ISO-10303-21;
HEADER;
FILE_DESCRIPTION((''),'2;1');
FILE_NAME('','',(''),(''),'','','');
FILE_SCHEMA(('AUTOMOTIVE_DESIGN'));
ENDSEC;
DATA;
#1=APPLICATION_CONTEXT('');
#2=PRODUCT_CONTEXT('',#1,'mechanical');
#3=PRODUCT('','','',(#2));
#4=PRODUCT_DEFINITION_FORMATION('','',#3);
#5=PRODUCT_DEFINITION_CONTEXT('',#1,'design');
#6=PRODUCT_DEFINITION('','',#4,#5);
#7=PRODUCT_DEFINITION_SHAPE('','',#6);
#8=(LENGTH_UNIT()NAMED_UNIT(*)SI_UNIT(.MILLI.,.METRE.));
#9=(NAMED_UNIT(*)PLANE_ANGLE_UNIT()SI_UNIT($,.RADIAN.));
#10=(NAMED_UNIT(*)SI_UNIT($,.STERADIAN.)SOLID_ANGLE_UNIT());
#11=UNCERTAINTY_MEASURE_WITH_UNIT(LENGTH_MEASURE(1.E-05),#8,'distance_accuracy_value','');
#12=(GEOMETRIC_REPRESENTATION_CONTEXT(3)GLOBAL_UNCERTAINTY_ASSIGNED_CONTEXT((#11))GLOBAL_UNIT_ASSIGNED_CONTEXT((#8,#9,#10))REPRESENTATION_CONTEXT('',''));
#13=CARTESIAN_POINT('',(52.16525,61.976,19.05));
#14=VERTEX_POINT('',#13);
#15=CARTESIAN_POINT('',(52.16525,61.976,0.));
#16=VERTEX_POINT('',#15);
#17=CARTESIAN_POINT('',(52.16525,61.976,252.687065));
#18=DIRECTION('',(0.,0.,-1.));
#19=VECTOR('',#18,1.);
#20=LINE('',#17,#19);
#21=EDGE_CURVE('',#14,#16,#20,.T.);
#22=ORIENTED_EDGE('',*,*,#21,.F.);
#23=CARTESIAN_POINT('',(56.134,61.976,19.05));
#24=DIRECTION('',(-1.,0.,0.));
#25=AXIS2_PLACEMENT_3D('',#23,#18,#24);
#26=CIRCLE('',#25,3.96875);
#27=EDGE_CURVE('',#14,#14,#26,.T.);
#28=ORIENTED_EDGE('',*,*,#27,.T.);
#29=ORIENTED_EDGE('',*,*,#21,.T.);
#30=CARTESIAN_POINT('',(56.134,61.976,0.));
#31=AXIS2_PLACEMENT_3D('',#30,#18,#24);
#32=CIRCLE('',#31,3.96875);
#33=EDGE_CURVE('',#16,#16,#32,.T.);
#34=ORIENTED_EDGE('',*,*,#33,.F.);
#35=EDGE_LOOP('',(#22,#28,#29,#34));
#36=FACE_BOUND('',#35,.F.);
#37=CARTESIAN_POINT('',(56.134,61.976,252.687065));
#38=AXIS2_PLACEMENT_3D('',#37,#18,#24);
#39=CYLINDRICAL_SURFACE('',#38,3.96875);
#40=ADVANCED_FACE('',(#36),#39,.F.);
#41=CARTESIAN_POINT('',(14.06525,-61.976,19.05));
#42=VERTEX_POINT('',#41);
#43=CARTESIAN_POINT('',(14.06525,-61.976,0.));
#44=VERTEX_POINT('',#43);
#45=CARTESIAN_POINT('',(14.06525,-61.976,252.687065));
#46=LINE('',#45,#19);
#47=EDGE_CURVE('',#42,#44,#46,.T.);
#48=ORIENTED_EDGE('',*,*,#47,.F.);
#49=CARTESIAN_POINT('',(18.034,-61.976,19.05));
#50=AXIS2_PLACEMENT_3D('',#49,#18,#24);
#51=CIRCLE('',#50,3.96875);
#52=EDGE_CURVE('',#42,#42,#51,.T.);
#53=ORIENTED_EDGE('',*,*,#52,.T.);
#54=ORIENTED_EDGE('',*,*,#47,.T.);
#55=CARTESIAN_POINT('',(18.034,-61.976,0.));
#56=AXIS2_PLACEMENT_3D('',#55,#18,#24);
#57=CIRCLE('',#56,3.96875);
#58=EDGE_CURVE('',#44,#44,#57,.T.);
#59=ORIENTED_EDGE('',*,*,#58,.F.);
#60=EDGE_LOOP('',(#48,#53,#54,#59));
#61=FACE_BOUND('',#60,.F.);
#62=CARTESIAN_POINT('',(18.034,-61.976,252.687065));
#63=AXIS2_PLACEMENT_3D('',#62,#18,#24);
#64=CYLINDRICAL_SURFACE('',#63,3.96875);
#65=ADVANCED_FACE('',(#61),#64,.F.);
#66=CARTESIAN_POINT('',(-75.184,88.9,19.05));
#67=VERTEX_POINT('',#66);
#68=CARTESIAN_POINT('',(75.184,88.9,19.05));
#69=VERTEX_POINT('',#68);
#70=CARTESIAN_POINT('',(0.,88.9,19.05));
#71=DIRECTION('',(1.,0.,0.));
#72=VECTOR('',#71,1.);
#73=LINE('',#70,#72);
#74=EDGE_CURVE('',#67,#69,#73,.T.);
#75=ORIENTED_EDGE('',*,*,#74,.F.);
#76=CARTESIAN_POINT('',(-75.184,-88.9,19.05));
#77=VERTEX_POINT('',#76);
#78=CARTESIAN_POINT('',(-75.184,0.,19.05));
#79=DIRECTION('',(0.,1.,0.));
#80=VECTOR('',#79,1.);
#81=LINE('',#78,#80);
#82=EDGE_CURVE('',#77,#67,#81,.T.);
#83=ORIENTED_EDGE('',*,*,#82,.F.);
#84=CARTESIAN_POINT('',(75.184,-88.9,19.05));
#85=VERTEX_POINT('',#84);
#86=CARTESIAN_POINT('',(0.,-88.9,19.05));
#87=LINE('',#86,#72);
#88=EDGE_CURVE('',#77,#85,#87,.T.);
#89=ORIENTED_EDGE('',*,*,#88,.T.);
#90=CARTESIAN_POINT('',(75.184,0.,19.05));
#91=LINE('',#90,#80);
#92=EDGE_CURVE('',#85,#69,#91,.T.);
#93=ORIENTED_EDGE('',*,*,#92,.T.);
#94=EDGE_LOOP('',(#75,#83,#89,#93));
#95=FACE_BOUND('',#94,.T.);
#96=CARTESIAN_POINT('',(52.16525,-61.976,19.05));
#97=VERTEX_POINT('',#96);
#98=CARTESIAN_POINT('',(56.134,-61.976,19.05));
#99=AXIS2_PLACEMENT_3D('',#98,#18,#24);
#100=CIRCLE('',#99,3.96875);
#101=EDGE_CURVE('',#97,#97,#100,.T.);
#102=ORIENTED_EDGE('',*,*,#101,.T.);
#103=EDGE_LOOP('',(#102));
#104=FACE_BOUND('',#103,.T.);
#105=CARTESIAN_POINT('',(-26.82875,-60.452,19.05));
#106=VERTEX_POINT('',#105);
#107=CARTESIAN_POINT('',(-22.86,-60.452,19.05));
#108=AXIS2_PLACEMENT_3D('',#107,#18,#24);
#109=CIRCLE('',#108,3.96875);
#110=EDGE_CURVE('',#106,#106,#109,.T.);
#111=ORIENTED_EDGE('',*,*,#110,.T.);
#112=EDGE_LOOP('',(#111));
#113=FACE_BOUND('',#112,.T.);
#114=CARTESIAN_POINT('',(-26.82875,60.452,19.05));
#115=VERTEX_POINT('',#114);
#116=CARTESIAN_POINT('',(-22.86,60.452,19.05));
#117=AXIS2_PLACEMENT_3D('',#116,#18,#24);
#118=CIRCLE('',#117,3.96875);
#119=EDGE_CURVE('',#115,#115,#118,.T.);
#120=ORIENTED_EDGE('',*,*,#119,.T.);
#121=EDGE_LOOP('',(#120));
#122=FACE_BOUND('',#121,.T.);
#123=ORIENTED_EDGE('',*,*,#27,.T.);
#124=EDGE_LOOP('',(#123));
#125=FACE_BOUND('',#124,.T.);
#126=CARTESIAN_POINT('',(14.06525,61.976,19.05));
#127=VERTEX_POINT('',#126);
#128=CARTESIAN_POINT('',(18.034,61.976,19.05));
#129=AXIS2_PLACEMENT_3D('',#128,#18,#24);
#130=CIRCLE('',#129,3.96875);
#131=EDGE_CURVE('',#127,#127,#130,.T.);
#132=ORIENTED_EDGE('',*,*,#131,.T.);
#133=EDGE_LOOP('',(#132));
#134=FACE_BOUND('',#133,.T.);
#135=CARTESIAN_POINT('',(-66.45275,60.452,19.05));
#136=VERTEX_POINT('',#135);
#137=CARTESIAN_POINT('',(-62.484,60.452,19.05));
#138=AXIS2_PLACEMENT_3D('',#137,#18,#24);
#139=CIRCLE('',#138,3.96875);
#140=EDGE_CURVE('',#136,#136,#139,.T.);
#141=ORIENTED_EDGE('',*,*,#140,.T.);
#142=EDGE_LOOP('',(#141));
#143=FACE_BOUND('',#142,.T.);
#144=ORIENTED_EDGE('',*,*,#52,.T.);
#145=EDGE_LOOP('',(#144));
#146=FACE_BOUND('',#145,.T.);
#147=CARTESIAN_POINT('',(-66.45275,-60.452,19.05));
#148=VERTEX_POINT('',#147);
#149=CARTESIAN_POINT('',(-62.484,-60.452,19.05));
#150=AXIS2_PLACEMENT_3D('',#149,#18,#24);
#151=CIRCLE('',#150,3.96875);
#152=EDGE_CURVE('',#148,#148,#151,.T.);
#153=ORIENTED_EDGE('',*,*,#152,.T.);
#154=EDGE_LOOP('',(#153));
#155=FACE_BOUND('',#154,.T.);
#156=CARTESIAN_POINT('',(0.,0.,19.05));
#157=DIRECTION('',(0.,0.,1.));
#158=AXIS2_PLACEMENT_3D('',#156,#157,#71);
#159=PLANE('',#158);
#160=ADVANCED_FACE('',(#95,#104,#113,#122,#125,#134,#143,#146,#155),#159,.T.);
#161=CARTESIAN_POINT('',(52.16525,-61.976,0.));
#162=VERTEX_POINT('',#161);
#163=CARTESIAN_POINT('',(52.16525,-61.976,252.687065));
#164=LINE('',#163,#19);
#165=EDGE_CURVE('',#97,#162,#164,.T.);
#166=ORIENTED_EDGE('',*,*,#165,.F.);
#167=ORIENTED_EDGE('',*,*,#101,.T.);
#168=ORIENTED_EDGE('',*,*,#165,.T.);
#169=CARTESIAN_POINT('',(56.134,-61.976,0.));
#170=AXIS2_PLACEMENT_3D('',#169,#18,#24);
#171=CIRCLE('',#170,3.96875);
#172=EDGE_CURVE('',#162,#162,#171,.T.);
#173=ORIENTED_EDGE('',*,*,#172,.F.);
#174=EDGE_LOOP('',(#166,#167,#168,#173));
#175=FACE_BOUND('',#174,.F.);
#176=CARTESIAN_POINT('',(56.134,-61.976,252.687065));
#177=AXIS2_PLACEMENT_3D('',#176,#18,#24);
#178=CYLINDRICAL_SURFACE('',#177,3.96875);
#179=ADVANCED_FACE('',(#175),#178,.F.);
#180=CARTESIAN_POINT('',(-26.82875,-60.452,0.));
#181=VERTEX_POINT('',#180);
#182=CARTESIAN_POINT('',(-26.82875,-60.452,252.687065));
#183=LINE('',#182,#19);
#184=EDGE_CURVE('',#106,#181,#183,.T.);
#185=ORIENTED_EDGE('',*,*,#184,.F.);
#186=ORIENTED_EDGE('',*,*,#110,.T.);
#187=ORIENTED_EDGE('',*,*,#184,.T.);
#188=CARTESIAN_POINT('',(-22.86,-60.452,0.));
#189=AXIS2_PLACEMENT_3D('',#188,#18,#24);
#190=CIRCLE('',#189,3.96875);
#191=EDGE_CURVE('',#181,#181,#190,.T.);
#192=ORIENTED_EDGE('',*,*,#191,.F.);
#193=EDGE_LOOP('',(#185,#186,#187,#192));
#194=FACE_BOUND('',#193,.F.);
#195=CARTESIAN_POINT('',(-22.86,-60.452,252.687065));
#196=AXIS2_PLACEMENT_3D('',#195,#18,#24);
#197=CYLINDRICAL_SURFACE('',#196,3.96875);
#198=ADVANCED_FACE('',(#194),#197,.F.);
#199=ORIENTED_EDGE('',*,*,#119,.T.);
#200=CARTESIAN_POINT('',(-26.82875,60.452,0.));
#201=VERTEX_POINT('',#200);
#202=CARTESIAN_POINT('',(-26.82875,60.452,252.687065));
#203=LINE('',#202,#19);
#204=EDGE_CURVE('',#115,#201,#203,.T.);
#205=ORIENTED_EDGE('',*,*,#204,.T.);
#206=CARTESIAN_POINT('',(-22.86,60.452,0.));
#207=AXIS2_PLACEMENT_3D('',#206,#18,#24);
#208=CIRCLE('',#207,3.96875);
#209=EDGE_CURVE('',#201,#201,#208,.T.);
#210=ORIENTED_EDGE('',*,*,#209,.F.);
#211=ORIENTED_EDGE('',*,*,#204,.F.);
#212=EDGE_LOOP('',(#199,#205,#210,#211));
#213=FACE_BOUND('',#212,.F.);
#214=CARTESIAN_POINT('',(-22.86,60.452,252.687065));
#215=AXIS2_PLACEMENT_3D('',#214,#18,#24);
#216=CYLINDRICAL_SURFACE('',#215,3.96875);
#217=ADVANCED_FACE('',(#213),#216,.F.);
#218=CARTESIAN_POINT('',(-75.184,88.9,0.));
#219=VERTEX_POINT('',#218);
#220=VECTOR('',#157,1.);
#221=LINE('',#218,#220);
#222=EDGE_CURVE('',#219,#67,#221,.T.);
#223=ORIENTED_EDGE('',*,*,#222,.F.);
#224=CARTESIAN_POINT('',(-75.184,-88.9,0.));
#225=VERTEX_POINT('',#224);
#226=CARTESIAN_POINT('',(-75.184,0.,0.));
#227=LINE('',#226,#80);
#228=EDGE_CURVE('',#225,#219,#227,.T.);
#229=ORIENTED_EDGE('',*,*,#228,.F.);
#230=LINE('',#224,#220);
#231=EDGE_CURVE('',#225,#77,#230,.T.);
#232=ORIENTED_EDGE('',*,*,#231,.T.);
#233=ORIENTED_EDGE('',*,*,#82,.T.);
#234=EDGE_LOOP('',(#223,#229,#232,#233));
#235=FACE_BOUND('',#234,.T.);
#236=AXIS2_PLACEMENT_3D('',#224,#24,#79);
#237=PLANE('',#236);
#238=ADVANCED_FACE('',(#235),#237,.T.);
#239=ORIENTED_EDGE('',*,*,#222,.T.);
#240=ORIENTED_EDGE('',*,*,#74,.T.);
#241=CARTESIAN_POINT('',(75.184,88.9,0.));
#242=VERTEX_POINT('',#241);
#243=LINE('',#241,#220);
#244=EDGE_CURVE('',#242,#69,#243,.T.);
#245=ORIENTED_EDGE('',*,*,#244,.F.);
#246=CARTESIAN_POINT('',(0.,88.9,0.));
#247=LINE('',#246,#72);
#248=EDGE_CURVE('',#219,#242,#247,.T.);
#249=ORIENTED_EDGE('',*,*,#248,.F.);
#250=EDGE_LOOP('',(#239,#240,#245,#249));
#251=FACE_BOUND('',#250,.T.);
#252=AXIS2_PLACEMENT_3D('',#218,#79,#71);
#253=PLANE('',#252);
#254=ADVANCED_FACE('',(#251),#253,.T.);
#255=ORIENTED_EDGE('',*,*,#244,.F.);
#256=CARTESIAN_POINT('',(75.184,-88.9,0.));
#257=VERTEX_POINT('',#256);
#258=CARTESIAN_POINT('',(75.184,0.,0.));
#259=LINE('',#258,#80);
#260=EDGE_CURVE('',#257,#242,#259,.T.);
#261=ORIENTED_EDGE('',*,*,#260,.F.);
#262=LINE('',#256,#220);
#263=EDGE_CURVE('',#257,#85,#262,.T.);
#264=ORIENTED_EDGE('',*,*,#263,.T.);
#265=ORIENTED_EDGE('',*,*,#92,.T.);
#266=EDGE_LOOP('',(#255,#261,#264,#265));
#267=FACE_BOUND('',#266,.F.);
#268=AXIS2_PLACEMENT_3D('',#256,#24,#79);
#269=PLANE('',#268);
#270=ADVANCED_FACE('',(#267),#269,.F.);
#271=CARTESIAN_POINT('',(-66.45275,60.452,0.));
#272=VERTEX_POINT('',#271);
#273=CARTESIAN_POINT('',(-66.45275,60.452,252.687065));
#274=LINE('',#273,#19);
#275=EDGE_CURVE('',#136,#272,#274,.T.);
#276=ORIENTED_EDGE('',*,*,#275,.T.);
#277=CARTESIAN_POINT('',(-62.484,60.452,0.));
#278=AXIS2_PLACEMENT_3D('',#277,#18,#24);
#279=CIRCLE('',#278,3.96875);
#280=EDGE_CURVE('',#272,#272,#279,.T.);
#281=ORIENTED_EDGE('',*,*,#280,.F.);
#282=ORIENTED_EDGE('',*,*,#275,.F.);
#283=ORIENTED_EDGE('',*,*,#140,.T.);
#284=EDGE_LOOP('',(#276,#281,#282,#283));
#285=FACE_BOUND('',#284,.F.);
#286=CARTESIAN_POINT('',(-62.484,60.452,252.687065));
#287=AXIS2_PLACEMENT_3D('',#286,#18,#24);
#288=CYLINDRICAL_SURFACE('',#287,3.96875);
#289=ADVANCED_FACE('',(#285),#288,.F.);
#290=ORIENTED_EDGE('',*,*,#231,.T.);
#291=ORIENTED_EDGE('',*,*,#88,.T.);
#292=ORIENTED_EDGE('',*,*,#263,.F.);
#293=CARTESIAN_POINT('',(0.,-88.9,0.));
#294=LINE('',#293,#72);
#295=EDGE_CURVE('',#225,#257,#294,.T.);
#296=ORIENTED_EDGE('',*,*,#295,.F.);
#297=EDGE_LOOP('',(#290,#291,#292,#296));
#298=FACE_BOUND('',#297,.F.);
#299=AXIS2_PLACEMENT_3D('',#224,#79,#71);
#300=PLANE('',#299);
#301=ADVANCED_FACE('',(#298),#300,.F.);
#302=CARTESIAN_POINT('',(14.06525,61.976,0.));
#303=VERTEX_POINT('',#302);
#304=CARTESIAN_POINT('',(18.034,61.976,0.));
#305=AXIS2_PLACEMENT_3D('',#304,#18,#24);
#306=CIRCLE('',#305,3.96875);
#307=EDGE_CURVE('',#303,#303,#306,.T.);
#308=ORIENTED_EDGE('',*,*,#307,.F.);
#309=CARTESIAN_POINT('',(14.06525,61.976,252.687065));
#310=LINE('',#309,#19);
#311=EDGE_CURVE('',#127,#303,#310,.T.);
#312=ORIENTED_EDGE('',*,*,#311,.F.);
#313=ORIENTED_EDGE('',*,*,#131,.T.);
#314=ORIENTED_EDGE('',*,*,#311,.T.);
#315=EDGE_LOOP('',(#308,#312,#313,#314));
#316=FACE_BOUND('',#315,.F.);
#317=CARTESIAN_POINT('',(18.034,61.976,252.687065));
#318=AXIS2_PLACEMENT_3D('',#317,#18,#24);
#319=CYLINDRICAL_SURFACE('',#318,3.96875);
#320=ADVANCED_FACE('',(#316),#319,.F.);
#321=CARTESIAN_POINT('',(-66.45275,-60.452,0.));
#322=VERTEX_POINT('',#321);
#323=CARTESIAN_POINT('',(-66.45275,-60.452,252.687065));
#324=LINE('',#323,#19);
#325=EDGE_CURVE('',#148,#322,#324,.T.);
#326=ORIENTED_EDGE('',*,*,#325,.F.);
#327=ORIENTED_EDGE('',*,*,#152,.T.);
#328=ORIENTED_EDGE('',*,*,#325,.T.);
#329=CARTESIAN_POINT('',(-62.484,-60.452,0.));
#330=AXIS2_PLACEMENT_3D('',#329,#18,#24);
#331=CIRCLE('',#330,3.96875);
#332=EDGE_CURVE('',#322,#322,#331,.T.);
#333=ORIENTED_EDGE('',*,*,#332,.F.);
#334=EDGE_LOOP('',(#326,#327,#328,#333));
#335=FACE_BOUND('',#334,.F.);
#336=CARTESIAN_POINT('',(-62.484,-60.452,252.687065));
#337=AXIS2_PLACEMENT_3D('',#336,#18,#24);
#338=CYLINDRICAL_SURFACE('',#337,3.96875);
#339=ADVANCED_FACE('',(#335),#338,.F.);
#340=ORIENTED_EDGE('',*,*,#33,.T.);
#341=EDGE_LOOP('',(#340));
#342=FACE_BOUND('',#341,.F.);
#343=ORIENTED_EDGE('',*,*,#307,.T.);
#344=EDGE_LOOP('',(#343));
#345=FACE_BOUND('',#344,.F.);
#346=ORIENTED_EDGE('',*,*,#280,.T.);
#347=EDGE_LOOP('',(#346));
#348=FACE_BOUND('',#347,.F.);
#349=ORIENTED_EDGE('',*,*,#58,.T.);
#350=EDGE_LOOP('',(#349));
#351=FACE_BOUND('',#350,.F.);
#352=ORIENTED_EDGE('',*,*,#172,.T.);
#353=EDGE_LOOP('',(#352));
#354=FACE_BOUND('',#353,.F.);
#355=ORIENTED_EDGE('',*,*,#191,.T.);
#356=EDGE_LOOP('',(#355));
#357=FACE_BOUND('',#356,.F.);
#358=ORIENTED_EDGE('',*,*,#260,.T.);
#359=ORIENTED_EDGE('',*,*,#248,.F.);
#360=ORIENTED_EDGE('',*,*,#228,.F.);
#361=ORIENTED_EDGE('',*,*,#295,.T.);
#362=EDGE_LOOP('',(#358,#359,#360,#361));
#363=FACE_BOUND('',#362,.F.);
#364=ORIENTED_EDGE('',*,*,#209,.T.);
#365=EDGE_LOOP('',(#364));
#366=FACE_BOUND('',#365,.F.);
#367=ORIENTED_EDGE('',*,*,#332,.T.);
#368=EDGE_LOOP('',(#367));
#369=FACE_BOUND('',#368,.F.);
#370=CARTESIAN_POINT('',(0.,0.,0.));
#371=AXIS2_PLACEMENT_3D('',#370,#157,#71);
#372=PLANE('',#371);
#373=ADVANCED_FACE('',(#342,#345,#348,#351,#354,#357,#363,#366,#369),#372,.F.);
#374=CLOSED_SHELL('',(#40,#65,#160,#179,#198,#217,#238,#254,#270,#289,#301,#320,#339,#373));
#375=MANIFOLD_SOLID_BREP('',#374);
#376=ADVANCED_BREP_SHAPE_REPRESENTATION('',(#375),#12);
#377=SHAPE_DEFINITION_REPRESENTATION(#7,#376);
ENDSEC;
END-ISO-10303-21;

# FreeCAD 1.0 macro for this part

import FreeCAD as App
import Part
import Sketcher

V = App.Vector
Q = App.Units.Quantity


def add_polygon(sketch, points):
    """Adds a closed chain of lines whose ends are joined by coincident constraints."""
    first, n = sketch.GeometryCount, len(points)
    for a, b in zip(points, points[1:] + points[:1]):
        sketch.addGeometry(Part.LineSegment(App.Vector(*a, 0), App.Vector(*b, 0)), False)
    for i in range(n):
        sketch.addConstraint(Sketcher.Constraint("Coincident", first + i, 2, first + (i + 1) % n, 1))

doc = App.newDocument("Part")
body = doc.addObject("PartDesign::Body", "Body")

# Sketch on XY plane
sketch1 = doc.addObject("Sketcher::SketchObject", "Sketch")
body.addObject(sketch1)
sketch1.AttachmentSupport = (doc.XY_Plane, [""])
sketch1.MapMode = "FlatFace"
add_polygon(sketch1, [(-75, 89), (-75, -89), (75, -89), (75, 89)])  # lines 0-3
sketch1.addConstraint(Sketcher.Constraint("Vertical", 0))
sketch1.addConstraint(Sketcher.Constraint("Horizontal", 1))
sketch1.addConstraint(Sketcher.Constraint("Vertical", 2))
sketch1.addConstraint(Sketcher.Constraint("Horizontal", 3))
sketch1.addConstraint(Sketcher.Constraint("Symmetric", 0, 2, 2, 2, -1, 1))
sketch1.addConstraint(Sketcher.Constraint("DistanceY", 0, 2, 0, 1, Q("7 in")))
sketch1.addConstraint(Sketcher.Constraint("DistanceX", 1, 1, 1, 2, Q("5.92 in")))
pad1 = doc.addObject("PartDesign::Pad", "Pad")
body.addObject(pad1)
pad1.Profile = sketch1
pad1.Length = Q("0.75 in")

# Sketch on XY plane
sketch2 = doc.addObject("Sketcher::SketchObject", "Sketch001")
body.addObject(sketch2)
sketch2.AttachmentSupport = (doc.XY_Plane, [""])
sketch2.MapMode = "FlatFace"
sketch2.AttachmentOffset = App.Placement(V(0, 0, 0.75 * 25.4), App.Rotation())
sketch2.addGeometry(Part.Circle(V(18, 62, 0), V(0, 0, 1), 4), False)
sketch2.addGeometry(Part.Circle(V(56.1, 62, 0), V(0, 0, 1), 4), False)
sketch2.addGeometry(Part.Circle(V(18, -62, 0), V(0, 0, 1), 4), False)
sketch2.addGeometry(Part.Circle(V(56.1, -62, 0), V(0, 0, 1), 4), False)
sketch2.addGeometry(Part.Circle(V(-62.5, 60.5, 0), V(0, 0, 1), 4), False)
sketch2.addGeometry(Part.Circle(V(-22.9, 60.5, 0), V(0, 0, 1), 4), False)
sketch2.addGeometry(Part.Circle(V(-62.5, -60.5, 0), V(0, 0, 1), 4), False)
sketch2.addGeometry(Part.Circle(V(-22.9, -60.5, 0), V(0, 0, 1), 4), False)
sketch2.addConstraint(Sketcher.Constraint("Equal", 0, 1))
sketch2.addConstraint(Sketcher.Constraint("Equal", 1, 2))
sketch2.addConstraint(Sketcher.Constraint("Equal", 2, 3))
sketch2.addConstraint(Sketcher.Constraint("Equal", 3, 4))
sketch2.addConstraint(Sketcher.Constraint("Equal", 4, 5))
sketch2.addConstraint(Sketcher.Constraint("Equal", 5, 6))
sketch2.addConstraint(Sketcher.Constraint("Equal", 6, 7))
sketch2.addConstraint(Sketcher.Constraint("Symmetric", 0, 3, 2, 3, -1))
sketch2.addConstraint(Sketcher.Constraint("Symmetric", 1, 3, 3, 3, -1))
sketch2.addConstraint(Sketcher.Constraint("Symmetric", 4, 3, 6, 3, -1))
sketch2.addConstraint(Sketcher.Constraint("Symmetric", 5, 3, 7, 3, -1))
sketch2.addConstraint(Sketcher.Constraint("Horizontal", 0, 3, 1, 3))
sketch2.addConstraint(Sketcher.Constraint("Horizontal", 4, 3, 5, 3))
sketch2.addConstraint(Sketcher.Constraint("Diameter", 0, Q("0.3125 in")))
sketch2.addConstraint(Sketcher.Constraint("DistanceX", 5, 3, -1, 1, Q("0.9 in")))
sketch2.addConstraint(Sketcher.Constraint("DistanceX", 0, 3, 1, 3, Q("1.5 in")))
sketch2.addConstraint(Sketcher.Constraint("DistanceX", -1, 1, 0, 3, Q("0.71 in")))
sketch2.addConstraint(Sketcher.Constraint("DistanceY", -1, 1, 0, 3, Q("2.44 in")))
sketch2.addConstraint(Sketcher.Constraint("DistanceX", 4, 3, -1, 1, Q("2.46 in")))
sketch2.addConstraint(Sketcher.Constraint("DistanceY", -1, 1, 4, 3, Q("2.38 in")))
doc.recompute()
hole = doc.addObject("PartDesign::Hole", "Hole")
body.addObject(hole)
hole.Profile = sketch2
hole.ThreadType = "None"
hole.Diameter = Q("0.3125 in")
hole.DepthType = "ThroughAll"

doc.recompute()
